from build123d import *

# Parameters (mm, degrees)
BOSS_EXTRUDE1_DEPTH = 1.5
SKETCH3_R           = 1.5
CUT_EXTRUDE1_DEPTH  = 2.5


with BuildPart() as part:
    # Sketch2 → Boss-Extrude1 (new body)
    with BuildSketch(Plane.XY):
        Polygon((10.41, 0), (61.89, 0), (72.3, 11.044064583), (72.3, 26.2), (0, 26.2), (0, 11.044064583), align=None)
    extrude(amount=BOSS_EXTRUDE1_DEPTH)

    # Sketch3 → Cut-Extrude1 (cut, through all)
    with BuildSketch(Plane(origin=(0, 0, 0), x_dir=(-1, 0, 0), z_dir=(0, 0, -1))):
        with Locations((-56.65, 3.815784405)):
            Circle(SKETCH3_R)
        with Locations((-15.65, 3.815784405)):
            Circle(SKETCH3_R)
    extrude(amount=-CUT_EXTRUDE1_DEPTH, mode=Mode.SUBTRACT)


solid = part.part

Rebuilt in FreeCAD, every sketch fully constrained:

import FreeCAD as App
import Part
import Sketcher

V = App.Vector
Q = App.Units.Quantity

doc = App.newDocument("Part")
body = doc.addObject("PartDesign::Body", "Body")

# Sketch on XY plane
sketch1 = body.newObject("Sketcher::SketchObject", "Sketch")
sketch1.AttachmentSupport = (doc.getObject("XY_Plane"), [""])
sketch1.MapMode = "FlatFace"
sketch1.addGeometry(Part.LineSegment(V(10, 0, 0), V(62, 0, 0)), False)
sketch1.addGeometry(Part.LineSegment(V(62, 0, 0), V(72, 11, 0)), False)
sketch1.addGeometry(Part.LineSegment(V(72, 11, 0), V(72, 26, 0)), False)
sketch1.addGeometry(Part.LineSegment(V(72, 26, 0), V(0, 26, 0)), False)
sketch1.addGeometry(Part.LineSegment(V(0, 26, 0), V(0, 11, 0)), False)
sketch1.addGeometry(Part.LineSegment(V(0, 11, 0), V(10, 0, 0)), False)
sketch1.addConstraint(Sketcher.Constraint("Coincident", 0, 2, 1, 1))
sketch1.addConstraint(Sketcher.Constraint("Coincident", 1, 2, 2, 1))
sketch1.addConstraint(Sketcher.Constraint("Coincident", 2, 2, 3, 1))
sketch1.addConstraint(Sketcher.Constraint("Coincident", 3, 2, 4, 1))
sketch1.addConstraint(Sketcher.Constraint("Coincident", 4, 2, 5, 1))
sketch1.addConstraint(Sketcher.Constraint("Coincident", 5, 2, 0, 1))
sketch1.addConstraint(Sketcher.Constraint("Horizontal", 0))
sketch1.addConstraint(Sketcher.Constraint("Vertical", 2))
sketch1.addConstraint(Sketcher.Constraint("Horizontal", 3))
sketch1.addConstraint(Sketcher.Constraint("Vertical", 4))
sketch1.addConstraint(Sketcher.Constraint("PointOnObject", 0, 2, -1))
sketch1.addConstraint(Sketcher.Constraint("PointOnObject", 3, 2, -2))
sketch1.addConstraint(Sketcher.Constraint("Horizontal", 1, 2, 4, 2))
sketch1.addConstraint(Sketcher.Constraint("Equal", 1, 5))
sketch1.addConstraint(Sketcher.Constraint("DistanceX", 3, 2, 3, 1, Q("72.3 mm")))
sketch1.addConstraint(Sketcher.Constraint("DistanceX", 0, 1, 0, 2, Q("51.48 mm")))
sketch1.addConstraint(Sketcher.Constraint("DistanceY", -1, 1, 2, 2, Q("26.2 mm")))
sketch1.addConstraint(Sketcher.Constraint("Distance", 1, Q("15.176939 mm")))
pad1 = body.newObject("PartDesign::Pad", "Pad")
pad1.Profile = sketch1
pad1.Length = 1.5

# Sketch on XY plane
sketch2 = body.newObject("Sketcher::SketchObject", "Sketch001")
sketch2.AttachmentSupport = (doc.getObject("XY_Plane"), [""])
sketch2.MapMode = "FlatFace"
sketch2.addGeometry(Part.Circle(V(56.6, 3.8, 0), V(0, 0, 1), 1.5), False)
sketch2.addGeometry(Part.Circle(V(15.7, 3.8, 0), V(0, 0, 1), 1.5), False)
sketch2.addConstraint(Sketcher.Constraint("Equal", 0, 1))
sketch2.addConstraint(Sketcher.Constraint("Horizontal", 0, 3, 1, 3))
sketch2.addConstraint(Sketcher.Constraint("Diameter", 0, Q("3 mm")))
sketch2.addConstraint(Sketcher.Constraint("DistanceX", 1, 3, 0, 3, Q("41 mm")))
sketch2.addConstraint(Sketcher.Constraint("DistanceX", -1, 1, 0, 3, Q("56.65 mm")))
sketch2.addConstraint(Sketcher.Constraint("DistanceY", -1, 1, 0, 3, Q("3.815784 mm")))
pocket1 = body.newObject("PartDesign::Pocket", "Pocket")
pocket1.Profile = sketch2
pocket1.Type = "ThroughAll"
pocket1.Reversed = True

doc.recompute()
